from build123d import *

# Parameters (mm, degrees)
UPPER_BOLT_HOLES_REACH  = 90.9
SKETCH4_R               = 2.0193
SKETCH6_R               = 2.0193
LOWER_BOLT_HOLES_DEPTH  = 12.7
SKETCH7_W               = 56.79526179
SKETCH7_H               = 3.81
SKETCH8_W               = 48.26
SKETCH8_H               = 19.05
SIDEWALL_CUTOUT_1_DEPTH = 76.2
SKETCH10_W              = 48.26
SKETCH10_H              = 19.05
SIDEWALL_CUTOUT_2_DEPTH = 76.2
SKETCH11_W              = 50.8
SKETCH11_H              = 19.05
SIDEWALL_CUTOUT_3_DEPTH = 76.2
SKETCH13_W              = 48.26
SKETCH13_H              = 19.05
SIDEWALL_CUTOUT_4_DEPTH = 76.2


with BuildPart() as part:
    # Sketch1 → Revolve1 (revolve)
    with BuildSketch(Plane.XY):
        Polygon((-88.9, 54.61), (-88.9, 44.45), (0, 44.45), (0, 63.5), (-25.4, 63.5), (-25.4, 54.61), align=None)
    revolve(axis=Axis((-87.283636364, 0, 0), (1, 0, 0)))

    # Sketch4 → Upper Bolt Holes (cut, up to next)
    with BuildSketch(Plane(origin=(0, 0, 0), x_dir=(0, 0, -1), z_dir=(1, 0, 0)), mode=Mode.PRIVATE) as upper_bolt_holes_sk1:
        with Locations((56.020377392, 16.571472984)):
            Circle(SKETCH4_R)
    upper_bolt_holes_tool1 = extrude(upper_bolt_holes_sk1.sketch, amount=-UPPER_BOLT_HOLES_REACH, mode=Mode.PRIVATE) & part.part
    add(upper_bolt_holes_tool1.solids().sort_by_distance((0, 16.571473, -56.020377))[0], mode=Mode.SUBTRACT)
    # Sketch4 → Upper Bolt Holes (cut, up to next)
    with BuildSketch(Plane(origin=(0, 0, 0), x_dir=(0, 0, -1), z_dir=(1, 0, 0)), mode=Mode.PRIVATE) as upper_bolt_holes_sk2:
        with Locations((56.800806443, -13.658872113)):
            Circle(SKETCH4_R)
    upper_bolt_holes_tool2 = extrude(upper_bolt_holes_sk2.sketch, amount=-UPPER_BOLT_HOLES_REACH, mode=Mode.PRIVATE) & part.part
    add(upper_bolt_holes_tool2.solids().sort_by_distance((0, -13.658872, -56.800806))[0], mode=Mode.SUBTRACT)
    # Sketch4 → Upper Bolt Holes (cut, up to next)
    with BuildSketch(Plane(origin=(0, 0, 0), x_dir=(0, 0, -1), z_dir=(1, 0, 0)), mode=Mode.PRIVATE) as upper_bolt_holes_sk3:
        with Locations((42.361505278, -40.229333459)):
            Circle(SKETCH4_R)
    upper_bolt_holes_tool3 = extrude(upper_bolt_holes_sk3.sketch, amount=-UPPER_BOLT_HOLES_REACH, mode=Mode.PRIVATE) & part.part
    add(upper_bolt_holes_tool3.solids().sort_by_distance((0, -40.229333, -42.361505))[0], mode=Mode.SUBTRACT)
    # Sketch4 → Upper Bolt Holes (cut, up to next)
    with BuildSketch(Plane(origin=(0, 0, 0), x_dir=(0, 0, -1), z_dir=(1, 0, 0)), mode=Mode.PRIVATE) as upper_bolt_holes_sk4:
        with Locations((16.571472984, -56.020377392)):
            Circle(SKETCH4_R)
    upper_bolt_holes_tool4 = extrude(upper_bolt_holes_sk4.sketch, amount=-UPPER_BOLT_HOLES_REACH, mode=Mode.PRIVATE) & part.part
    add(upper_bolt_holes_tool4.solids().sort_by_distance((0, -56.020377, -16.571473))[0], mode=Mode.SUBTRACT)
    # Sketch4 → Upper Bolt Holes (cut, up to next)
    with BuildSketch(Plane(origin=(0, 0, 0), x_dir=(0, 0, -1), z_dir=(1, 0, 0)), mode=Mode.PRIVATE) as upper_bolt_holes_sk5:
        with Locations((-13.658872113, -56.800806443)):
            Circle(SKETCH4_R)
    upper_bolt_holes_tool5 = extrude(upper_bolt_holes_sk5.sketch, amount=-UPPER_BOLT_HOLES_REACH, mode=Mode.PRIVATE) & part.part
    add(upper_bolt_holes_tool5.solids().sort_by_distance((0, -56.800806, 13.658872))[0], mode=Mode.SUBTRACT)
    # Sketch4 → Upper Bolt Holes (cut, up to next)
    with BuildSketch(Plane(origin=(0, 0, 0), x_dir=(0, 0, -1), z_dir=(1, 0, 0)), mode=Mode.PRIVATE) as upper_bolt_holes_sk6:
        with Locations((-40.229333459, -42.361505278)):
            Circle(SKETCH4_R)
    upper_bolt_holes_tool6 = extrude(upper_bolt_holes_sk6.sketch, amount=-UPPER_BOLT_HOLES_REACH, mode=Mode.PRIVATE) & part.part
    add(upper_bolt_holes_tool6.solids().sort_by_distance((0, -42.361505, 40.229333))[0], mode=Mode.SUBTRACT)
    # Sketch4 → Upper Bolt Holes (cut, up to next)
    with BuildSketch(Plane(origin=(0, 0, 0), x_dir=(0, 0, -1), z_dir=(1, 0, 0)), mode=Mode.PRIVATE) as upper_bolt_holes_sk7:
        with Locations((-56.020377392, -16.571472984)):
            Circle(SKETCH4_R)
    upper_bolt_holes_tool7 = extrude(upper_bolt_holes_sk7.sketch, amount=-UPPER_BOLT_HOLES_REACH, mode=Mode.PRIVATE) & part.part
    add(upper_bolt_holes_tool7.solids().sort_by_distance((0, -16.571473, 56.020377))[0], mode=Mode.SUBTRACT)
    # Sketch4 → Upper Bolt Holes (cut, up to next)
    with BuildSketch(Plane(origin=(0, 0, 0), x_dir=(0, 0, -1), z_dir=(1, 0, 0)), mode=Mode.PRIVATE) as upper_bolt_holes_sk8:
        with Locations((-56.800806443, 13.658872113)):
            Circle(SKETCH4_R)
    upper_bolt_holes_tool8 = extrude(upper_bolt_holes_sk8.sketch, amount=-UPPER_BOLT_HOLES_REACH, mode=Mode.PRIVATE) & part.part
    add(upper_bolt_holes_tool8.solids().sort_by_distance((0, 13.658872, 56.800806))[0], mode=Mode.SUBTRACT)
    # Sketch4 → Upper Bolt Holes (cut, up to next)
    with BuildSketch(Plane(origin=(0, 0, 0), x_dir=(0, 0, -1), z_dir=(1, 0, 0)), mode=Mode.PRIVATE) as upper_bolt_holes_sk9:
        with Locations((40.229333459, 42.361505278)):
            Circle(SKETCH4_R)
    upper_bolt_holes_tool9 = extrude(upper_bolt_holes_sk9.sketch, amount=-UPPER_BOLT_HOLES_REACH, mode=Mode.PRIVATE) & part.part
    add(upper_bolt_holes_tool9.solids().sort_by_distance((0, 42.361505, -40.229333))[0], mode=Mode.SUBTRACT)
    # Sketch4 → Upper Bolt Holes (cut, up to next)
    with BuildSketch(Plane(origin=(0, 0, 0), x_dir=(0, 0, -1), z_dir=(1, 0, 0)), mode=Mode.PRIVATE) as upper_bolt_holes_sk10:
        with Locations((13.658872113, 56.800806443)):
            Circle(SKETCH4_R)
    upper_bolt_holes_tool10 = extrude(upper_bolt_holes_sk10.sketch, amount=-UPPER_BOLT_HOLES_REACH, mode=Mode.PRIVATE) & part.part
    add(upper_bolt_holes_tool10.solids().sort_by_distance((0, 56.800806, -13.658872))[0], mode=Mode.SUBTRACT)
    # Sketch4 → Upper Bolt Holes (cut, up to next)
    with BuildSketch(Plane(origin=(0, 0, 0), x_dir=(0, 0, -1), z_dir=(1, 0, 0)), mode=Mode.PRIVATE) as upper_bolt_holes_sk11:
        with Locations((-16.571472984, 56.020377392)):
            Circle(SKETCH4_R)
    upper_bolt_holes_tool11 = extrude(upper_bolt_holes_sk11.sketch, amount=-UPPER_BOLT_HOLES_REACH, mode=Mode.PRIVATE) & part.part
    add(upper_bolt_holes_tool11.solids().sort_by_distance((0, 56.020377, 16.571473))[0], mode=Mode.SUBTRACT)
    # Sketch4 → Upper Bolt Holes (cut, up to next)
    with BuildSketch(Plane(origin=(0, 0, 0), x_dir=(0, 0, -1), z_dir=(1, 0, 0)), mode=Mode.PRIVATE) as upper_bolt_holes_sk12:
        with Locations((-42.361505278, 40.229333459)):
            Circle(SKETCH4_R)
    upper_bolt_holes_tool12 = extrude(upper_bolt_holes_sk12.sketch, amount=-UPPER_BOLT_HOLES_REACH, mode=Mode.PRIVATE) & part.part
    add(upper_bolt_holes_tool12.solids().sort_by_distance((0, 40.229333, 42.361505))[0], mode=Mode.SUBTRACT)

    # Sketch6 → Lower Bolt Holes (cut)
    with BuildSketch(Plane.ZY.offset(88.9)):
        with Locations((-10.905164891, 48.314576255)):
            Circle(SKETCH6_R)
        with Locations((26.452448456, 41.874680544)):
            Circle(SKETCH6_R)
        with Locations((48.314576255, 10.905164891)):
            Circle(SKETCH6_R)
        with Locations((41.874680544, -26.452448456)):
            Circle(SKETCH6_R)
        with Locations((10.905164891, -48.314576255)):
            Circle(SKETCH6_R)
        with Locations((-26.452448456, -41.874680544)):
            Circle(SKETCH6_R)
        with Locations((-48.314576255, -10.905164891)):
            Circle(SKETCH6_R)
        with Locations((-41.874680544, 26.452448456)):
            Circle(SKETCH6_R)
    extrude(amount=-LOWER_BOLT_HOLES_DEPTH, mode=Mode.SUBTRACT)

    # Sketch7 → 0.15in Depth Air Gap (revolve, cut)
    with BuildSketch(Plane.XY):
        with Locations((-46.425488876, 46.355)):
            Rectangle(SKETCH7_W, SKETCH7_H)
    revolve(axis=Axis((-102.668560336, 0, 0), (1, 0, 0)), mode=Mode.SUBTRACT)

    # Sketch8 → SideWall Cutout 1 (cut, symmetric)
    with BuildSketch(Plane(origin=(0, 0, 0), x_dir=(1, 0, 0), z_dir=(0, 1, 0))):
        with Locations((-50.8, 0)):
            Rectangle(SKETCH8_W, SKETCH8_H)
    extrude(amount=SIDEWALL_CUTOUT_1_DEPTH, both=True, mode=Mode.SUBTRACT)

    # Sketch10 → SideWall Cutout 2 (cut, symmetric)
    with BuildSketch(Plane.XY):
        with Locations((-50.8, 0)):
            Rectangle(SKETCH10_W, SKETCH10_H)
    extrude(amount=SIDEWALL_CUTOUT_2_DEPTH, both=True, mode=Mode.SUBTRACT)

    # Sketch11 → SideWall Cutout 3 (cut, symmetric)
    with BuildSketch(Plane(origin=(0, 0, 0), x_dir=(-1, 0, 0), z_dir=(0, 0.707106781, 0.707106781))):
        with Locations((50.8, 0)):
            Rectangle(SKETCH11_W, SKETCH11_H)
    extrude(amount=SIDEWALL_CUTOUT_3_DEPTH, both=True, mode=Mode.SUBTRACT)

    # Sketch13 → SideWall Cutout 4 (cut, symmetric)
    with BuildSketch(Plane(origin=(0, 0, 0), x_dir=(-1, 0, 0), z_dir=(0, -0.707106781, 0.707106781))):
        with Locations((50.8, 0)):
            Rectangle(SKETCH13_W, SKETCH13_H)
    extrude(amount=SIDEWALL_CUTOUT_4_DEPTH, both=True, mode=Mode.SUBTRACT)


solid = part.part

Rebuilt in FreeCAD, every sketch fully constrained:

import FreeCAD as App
import Part
import Sketcher
Q = App.Units.Quantity

doc = App.newDocument("Part")
body = doc.addObject("PartDesign::Body", "Body")

# Sketch on XY plane
sketch1 = body.newObject("Sketcher::SketchObject", "Sketch")
sketch1.AttachmentSupport = (doc.getObject("XY_Plane"), [""])
sketch1.MapMode = "FlatFace"
sketch1.addGeometry([
    Part.LineSegment(App.Vector(-89, 55, 0), App.Vector(-89, 44, 0)),  # 0
    Part.LineSegment(App.Vector(-89, 44, 0), App.Vector(0, 44, 0)),  # 1
    Part.LineSegment(App.Vector(0, 44, 0), App.Vector(0, 64, 0)),  # 2
    Part.LineSegment(App.Vector(0, 64, 0), App.Vector(-25, 64, 0)),  # 3
    Part.LineSegment(App.Vector(-25, 64, 0), App.Vector(-25, 55, 0)),  # 4
    Part.LineSegment(App.Vector(-25, 55, 0), App.Vector(-89, 55, 0)),  # 5
], False)
sketch1.addConstraint([
    Sketcher.Constraint("Coincident", 0, 2, 1, 1),
    Sketcher.Constraint("Coincident", 1, 2, 2, 1),
    Sketcher.Constraint("Coincident", 2, 2, 3, 1),
    Sketcher.Constraint("Coincident", 3, 2, 4, 1),
    Sketcher.Constraint("Coincident", 4, 2, 5, 1),
    Sketcher.Constraint("Coincident", 5, 2, 0, 1),
    Sketcher.Constraint("Vertical", 0),
    Sketcher.Constraint("Horizontal", 1),
    Sketcher.Constraint("Vertical", 2),
    Sketcher.Constraint("Horizontal", 3),
    Sketcher.Constraint("Vertical", 4),
    Sketcher.Constraint("Horizontal", 5),
    Sketcher.Constraint("PointOnObject", 1, 2, -2),
    Sketcher.Constraint("DistanceX", 3, 2, 3, 1, Q("1 in")),
    Sketcher.Constraint("DistanceX", 1, 1, 1, 2, Q("3.5 in")),
    Sketcher.Constraint("DistanceY", 0, 2, 0, 1, Q("0.4 in")),
    Sketcher.Constraint("DistanceY", 2, 1, 2, 2, Q("0.75 in")),
    Sketcher.Constraint("DistanceY", -1, 1, 2, 2, Q("2.5 in")),
])
revolution = body.newObject("PartDesign::Revolution", "Revolution")
revolution.Profile = sketch1
revolution.ReferenceAxis = (sketch1, ["H_Axis"])
revolution.Angle = 360

# Sketch on YZ plane
sketch2 = body.newObject("Sketcher::SketchObject", "Sketch001")
sketch2.AttachmentSupport = (doc.getObject("YZ_Plane"), [""])
sketch2.MapMode = "FlatFace"
sketch2.addGeometry(Part.Circle(App.Vector(16.6, -56, 0), App.Vector(0, 0, 1), 2), False)
sketch2.addConstraint([
    Sketcher.Constraint("Diameter", 0, Q("0.159 in")),
    Sketcher.Constraint("DistanceX", -1, 1, 0, 3, 16.571473),
    Sketcher.Constraint("DistanceY", 0, 3, -1, 1, 56.020377),
])
pocket1 = body.newObject("PartDesign::Pocket", "Pocket")
pocket1.Profile = sketch2
pocket1.Type = "UpToFirst"

# Sketch on YZ plane
sketch3 = body.newObject("Sketcher::SketchObject", "Sketch002")
sketch3.AttachmentSupport = (doc.getObject("YZ_Plane"), [""])
sketch3.MapMode = "FlatFace"
sketch3.addGeometry(Part.Circle(App.Vector(-13.7, -56.8, 0), App.Vector(0, 0, 1), 2), False)
sketch3.addConstraint([
    Sketcher.Constraint("Diameter", 0, Q("0.159 in")),
    Sketcher.Constraint("DistanceX", 0, 3, -1, 1, 13.658872),
    Sketcher.Constraint("DistanceY", 0, 3, -1, 1, 56.800806),
])
pocket2 = body.newObject("PartDesign::Pocket", "Pocket001")
pocket2.Profile = sketch3
pocket2.Type = "UpToFirst"

# Sketch on YZ plane
sketch4 = body.newObject("Sketcher::SketchObject", "Sketch003")
sketch4.AttachmentSupport = (doc.getObject("YZ_Plane"), [""])
sketch4.MapMode = "FlatFace"
sketch4.addGeometry(Part.Circle(App.Vector(-40.2, -42.4, 0), App.Vector(0, 0, 1), 2), False)
sketch4.addConstraint([
    Sketcher.Constraint("Diameter", 0, Q("0.159 in")),
    Sketcher.Constraint("DistanceX", 0, 3, -1, 1, 40.229333),
    Sketcher.Constraint("DistanceY", 0, 3, -1, 1, 42.361505),
])
pocket3 = body.newObject("PartDesign::Pocket", "Pocket002")
pocket3.Profile = sketch4
pocket3.Type = "UpToFirst"

# Sketch on YZ plane
sketch5 = body.newObject("Sketcher::SketchObject", "Sketch004")
sketch5.AttachmentSupport = (doc.getObject("YZ_Plane"), [""])
sketch5.MapMode = "FlatFace"
sketch5.addGeometry(Part.Circle(App.Vector(-56, -16.6, 0), App.Vector(0, 0, 1), 2), False)
sketch5.addConstraint([
    Sketcher.Constraint("Diameter", 0, Q("0.159 in")),
    Sketcher.Constraint("DistanceX", 0, 3, -1, 1, 56.020377),
    Sketcher.Constraint("DistanceY", 0, 3, -1, 1, 16.571473),
])
pocket4 = body.newObject("PartDesign::Pocket", "Pocket003")
pocket4.Profile = sketch5
pocket4.Type = "UpToFirst"

# Sketch on YZ plane
sketch6 = body.newObject("Sketcher::SketchObject", "Sketch005")
sketch6.AttachmentSupport = (doc.getObject("YZ_Plane"), [""])
sketch6.MapMode = "FlatFace"
sketch6.addGeometry(Part.Circle(App.Vector(-56.8, 13.7, 0), App.Vector(0, 0, 1), 2), False)
sketch6.addConstraint([
    Sketcher.Constraint("Diameter", 0, Q("0.159 in")),
    Sketcher.Constraint("DistanceX", 0, 3, -1, 1, 56.800806),
    Sketcher.Constraint("DistanceY", -1, 1, 0, 3, 13.658872),
])
pocket5 = body.newObject("PartDesign::Pocket", "Pocket004")
pocket5.Profile = sketch6
pocket5.Type = "UpToFirst"

# Sketch on YZ plane
sketch7 = body.newObject("Sketcher::SketchObject", "Sketch006")
sketch7.AttachmentSupport = (doc.getObject("YZ_Plane"), [""])
sketch7.MapMode = "FlatFace"
sketch7.addGeometry(Part.Circle(App.Vector(-42.4, 40.2, 0), App.Vector(0, 0, 1), 2), False)
sketch7.addConstraint([
    Sketcher.Constraint("Diameter", 0, Q("0.159 in")),
    Sketcher.Constraint("DistanceX", 0, 3, -1, 1, 42.361505),
    Sketcher.Constraint("DistanceY", -1, 1, 0, 3, 40.229333),
])
pocket6 = body.newObject("PartDesign::Pocket", "Pocket005")
pocket6.Profile = sketch7
pocket6.Type = "UpToFirst"

# Sketch on YZ plane
sketch8 = body.newObject("Sketcher::SketchObject", "Sketch007")
sketch8.AttachmentSupport = (doc.getObject("YZ_Plane"), [""])
sketch8.MapMode = "FlatFace"
sketch8.addGeometry(Part.Circle(App.Vector(-16.6, 56, 0), App.Vector(0, 0, 1), 2), False)
sketch8.addConstraint([
    Sketcher.Constraint("Diameter", 0, Q("0.159 in")),
    Sketcher.Constraint("DistanceX", 0, 3, -1, 1, 16.571473),
    Sketcher.Constraint("DistanceY", -1, 1, 0, 3, 56.020377),
])
pocket7 = body.newObject("PartDesign::Pocket", "Pocket006")
pocket7.Profile = sketch8
pocket7.Type = "UpToFirst"

# Sketch on YZ plane
sketch9 = body.newObject("Sketcher::SketchObject", "Sketch008")
sketch9.AttachmentSupport = (doc.getObject("YZ_Plane"), [""])
sketch9.MapMode = "FlatFace"
sketch9.addGeometry(Part.Circle(App.Vector(13.7, 56.8, 0), App.Vector(0, 0, 1), 2), False)
sketch9.addConstraint([
    Sketcher.Constraint("Diameter", 0, Q("0.159 in")),
    Sketcher.Constraint("DistanceX", -1, 1, 0, 3, 13.658872),
    Sketcher.Constraint("DistanceY", -1, 1, 0, 3, 56.800806),
])
pocket8 = body.newObject("PartDesign::Pocket", "Pocket007")
pocket8.Profile = sketch9
pocket8.Type = "UpToFirst"

# Sketch on YZ plane
sketch10 = body.newObject("Sketcher::SketchObject", "Sketch009")
sketch10.AttachmentSupport = (doc.getObject("YZ_Plane"), [""])
sketch10.MapMode = "FlatFace"
sketch10.addGeometry(Part.Circle(App.Vector(42.4, -40.2, 0), App.Vector(0, 0, 1), 2), False)
sketch10.addConstraint([
    Sketcher.Constraint("Diameter", 0, Q("0.159 in")),
    Sketcher.Constraint("DistanceX", -1, 1, 0, 3, 42.361505),
    Sketcher.Constraint("DistanceY", 0, 3, -1, 1, 40.229333),
])
pocket9 = body.newObject("PartDesign::Pocket", "Pocket008")
pocket9.Profile = sketch10
pocket9.Type = "UpToFirst"

# Sketch on YZ plane
sketch11 = body.newObject("Sketcher::SketchObject", "Sketch010")
sketch11.AttachmentSupport = (doc.getObject("YZ_Plane"), [""])
sketch11.MapMode = "FlatFace"
sketch11.addGeometry(Part.Circle(App.Vector(56.8, -13.7, 0), App.Vector(0, 0, 1), 2), False)
sketch11.addConstraint([
    Sketcher.Constraint("Diameter", 0, Q("0.159 in")),
    Sketcher.Constraint("DistanceX", -1, 1, 0, 3, 56.800806),
    Sketcher.Constraint("DistanceY", 0, 3, -1, 1, 13.658872),
])
pocket10 = body.newObject("PartDesign::Pocket", "Pocket009")
pocket10.Profile = sketch11
pocket10.Type = "UpToFirst"

# Sketch on YZ plane
sketch12 = body.newObject("Sketcher::SketchObject", "Sketch011")
sketch12.AttachmentSupport = (doc.getObject("YZ_Plane"), [""])
sketch12.MapMode = "FlatFace"
sketch12.addGeometry(Part.Circle(App.Vector(56, 16.6, 0), App.Vector(0, 0, 1), 2), False)
sketch12.addConstraint([
    Sketcher.Constraint("Diameter", 0, Q("0.159 in")),
    Sketcher.Constraint("DistanceX", -1, 1, 0, 3, 56.020377),
    Sketcher.Constraint("DistanceY", -1, 1, 0, 3, 16.571473),
])
pocket11 = body.newObject("PartDesign::Pocket", "Pocket010")
pocket11.Profile = sketch12
pocket11.Type = "UpToFirst"

# Sketch on YZ plane
sketch13 = body.newObject("Sketcher::SketchObject", "Sketch012")
sketch13.AttachmentSupport = (doc.getObject("YZ_Plane"), [""])
sketch13.MapMode = "FlatFace"
sketch13.addGeometry(Part.Circle(App.Vector(40.2, 42.4, 0), App.Vector(0, 0, 1), 2), False)
sketch13.addConstraint([
    Sketcher.Constraint("Diameter", 0, Q("0.159 in")),
    Sketcher.Constraint("DistanceX", -1, 1, 0, 3, 40.229333),
    Sketcher.Constraint("DistanceY", -1, 1, 0, 3, 42.361505),
])
pocket12 = body.newObject("PartDesign::Pocket", "Pocket011")
pocket12.Profile = sketch13
pocket12.Type = "UpToFirst"

# Sketch on YZ plane
sketch14 = body.newObject("Sketcher::SketchObject", "Sketch013")
sketch14.AttachmentSupport = (doc.getObject("YZ_Plane"), [""])
sketch14.MapMode = "FlatFace"
sketch14.AttachmentOffset = App.Placement(App.Vector(0, 0, -3.5 * 25.4), App.Rotation())
sketch14.addGeometry([
    Part.Circle(App.Vector(48.3, -10.9, 0), App.Vector(0, 0, 1), 2),  # 0
    Part.Circle(App.Vector(41.9, 26.5, 0), App.Vector(0, 0, 1), 2),  # 1
    Part.Circle(App.Vector(10.9, 48.3, 0), App.Vector(0, 0, 1), 2),  # 2
    Part.Circle(App.Vector(-26.5, 41.9, 0), App.Vector(0, 0, 1), 2),  # 3
    Part.Circle(App.Vector(-48.3, 10.9, 0), App.Vector(0, 0, 1), 2),  # 4
    Part.Circle(App.Vector(-41.9, -26.5, 0), App.Vector(0, 0, 1), 2),  # 5
    Part.Circle(App.Vector(-10.9, -48.3, 0), App.Vector(0, 0, 1), 2),  # 6
    Part.Circle(App.Vector(26.5, -41.9, 0), App.Vector(0, 0, 1), 2),  # 7
], False)
sketch14.addConstraint([
    Sketcher.Constraint("Equal", 0, 1),
    Sketcher.Constraint("Equal", 1, 2),
    Sketcher.Constraint("Equal", 2, 3),
    Sketcher.Constraint("Equal", 3, 4),
    Sketcher.Constraint("Equal", 4, 5),
    Sketcher.Constraint("Equal", 5, 6),
    Sketcher.Constraint("Equal", 6, 7),
    Sketcher.Constraint("Symmetric", 0, 3, 4, 3, -1, 1),
    Sketcher.Constraint("Symmetric", 1, 3, 5, 3, -1, 1),
    Sketcher.Constraint("Symmetric", 2, 3, 6, 3, -1, 1),
    Sketcher.Constraint("Symmetric", 3, 3, 7, 3, -1, 1),
    Sketcher.Constraint("Diameter", 0, Q("0.159 in")),
    Sketcher.Constraint("DistanceX", -1, 1, 1, 3, 41.874681),
    Sketcher.Constraint("DistanceY", -1, 1, 1, 3, 26.452448),
    Sketcher.Constraint("DistanceX", 3, 3, -1, 1, 26.452448),
    Sketcher.Constraint("DistanceY", -1, 1, 3, 3, 41.874681),
    Sketcher.Constraint("DistanceX", 2, 3, 0, 3, 37.409411),
    Sketcher.Constraint("DistanceY", 0, 3, 2, 3, 59.219741),
    Sketcher.Constraint("DistanceX", 4, 3, 2, 3, 59.219741),
    Sketcher.Constraint("DistanceY", 4, 3, 2, 3, 37.409411),
])
pocket13 = body.newObject("PartDesign::Pocket", "Pocket012")
pocket13.Profile = sketch14
pocket13.Length = Q("0.5 in")
pocket13.Reversed = True

# Sketch on XY plane
sketch15 = body.newObject("Sketcher::SketchObject", "Sketch014")
sketch15.AttachmentSupport = (doc.getObject("XY_Plane"), [""])
sketch15.MapMode = "FlatFace"
sketch15.addGeometry([
    Part.LineSegment(App.Vector(-74.8, 48.3, 0), App.Vector(-74.8, 44.5, 0)),
    Part.LineSegment(App.Vector(-74.8, 44.5, 0), App.Vector(-18, 44.5, 0)),
    Part.LineSegment(App.Vector(-18, 44.5, 0), App.Vector(-18, 48.3, 0)),
    Part.LineSegment(App.Vector(-18, 48.3, 0), App.Vector(-74.8, 48.3, 0)),
], False)
sketch15.addConstraint([
    Sketcher.Constraint("Coincident", 0, 2, 1, 1),
    Sketcher.Constraint("Coincident", 1, 2, 2, 1),
    Sketcher.Constraint("Coincident", 2, 2, 3, 1),
    Sketcher.Constraint("Coincident", 3, 2, 0, 1),
    Sketcher.Constraint("Vertical", 0),
    Sketcher.Constraint("Horizontal", 1),
    Sketcher.Constraint("Vertical", 2),
    Sketcher.Constraint("Horizontal", 3),
    Sketcher.Constraint("DistanceY", 0, 2, 0, 1, Q("0.15 in")),
    Sketcher.Constraint("DistanceY", -1, 1, 2, 2, Q("1.9 in")),
    Sketcher.Constraint("DistanceX", 1, 1, 1, 2, 56.795262),
    Sketcher.Constraint("DistanceX", 0, 2, -1, 1, 74.82312),
])
groove = body.newObject("PartDesign::Groove", "Groove")
groove.Profile = sketch15
groove.ReferenceAxis = (sketch15, ["H_Axis"])
groove.Angle = 360

# Sketch on XZ plane
sketch16 = body.newObject("Sketcher::SketchObject", "Sketch015")
sketch16.AttachmentSupport = (doc.getObject("XZ_Plane"), [""])
sketch16.MapMode = "FlatFace"
sketch16.addGeometry([
    Part.LineSegment(App.Vector(-75, -10, 0), App.Vector(-75, 10, 0)),
    Part.LineSegment(App.Vector(-75, 10, 0), App.Vector(-27, 10, 0)),
    Part.LineSegment(App.Vector(-27, 10, 0), App.Vector(-27, -10, 0)),
    Part.LineSegment(App.Vector(-27, -10, 0), App.Vector(-75, -10, 0)),
], False)
sketch16.addConstraint([
    Sketcher.Constraint("Coincident", 0, 2, 1, 1),
    Sketcher.Constraint("Coincident", 1, 2, 2, 1),
    Sketcher.Constraint("Coincident", 2, 2, 3, 1),
    Sketcher.Constraint("Coincident", 3, 2, 0, 1),
    Sketcher.Constraint("Vertical", 0),
    Sketcher.Constraint("Horizontal", 1),
    Sketcher.Constraint("Vertical", 2),
    Sketcher.Constraint("Horizontal", 3),
    Sketcher.Constraint("DistanceX", 1, 1, 1, 2, Q("1.9 in")),
    Sketcher.Constraint("DistanceY", 0, 1, 0, 2, Q("0.75 in")),
    Sketcher.Constraint("DistanceX", 0, 2, -1, 1, Q("2.95 in")),
    Sketcher.Constraint("DistanceY", -1, 1, 0, 2, Q("0.375 in")),
])
pocket14 = body.newObject("PartDesign::Pocket", "Pocket013")
pocket14.Profile = sketch16
pocket14.Length = Q("6 in")
pocket14.Midplane = True

# Sketch on XY plane
sketch17 = body.newObject("Sketcher::SketchObject", "Sketch016")
sketch17.AttachmentSupport = (doc.getObject("XY_Plane"), [""])
sketch17.MapMode = "FlatFace"
sketch17.addGeometry([
    Part.LineSegment(App.Vector(-75, 10, 0), App.Vector(-75, -10, 0)),
    Part.LineSegment(App.Vector(-75, -10, 0), App.Vector(-27, -10, 0)),
    Part.LineSegment(App.Vector(-27, -10, 0), App.Vector(-27, 10, 0)),
    Part.LineSegment(App.Vector(-27, 10, 0), App.Vector(-75, 10, 0)),
], False)
sketch17.addConstraint([
    Sketcher.Constraint("Coincident", 0, 2, 1, 1),
    Sketcher.Constraint("Coincident", 1, 2, 2, 1),
    Sketcher.Constraint("Coincident", 2, 2, 3, 1),
    Sketcher.Constraint("Coincident", 3, 2, 0, 1),
    Sketcher.Constraint("Vertical", 0),
    Sketcher.Constraint("Horizontal", 1),
    Sketcher.Constraint("Vertical", 2),
    Sketcher.Constraint("Horizontal", 3),
    Sketcher.Constraint("DistanceX", 1, 1, 1, 2, Q("1.9 in")),
    Sketcher.Constraint("DistanceY", 0, 2, 0, 1, Q("0.75 in")),
    Sketcher.Constraint("DistanceX", 0, 2, -1, 1, Q("2.95 in")),
    Sketcher.Constraint("DistanceY", 0, 2, -1, 1, Q("0.375 in")),
])
pocket15 = body.newObject("PartDesign::Pocket", "Pocket014")
pocket15.Profile = sketch17
pocket15.Length = Q("6 in")
pocket15.Midplane = True

# Sketch on an angled plane
sketch18 = body.newObject("Sketcher::SketchObject", "Sketch017")
sketch18.Placement = App.Placement(App.Vector(0, 0, 0), App.Rotation(App.Vector(-1, 0, 0), App.Vector(0, -0.707106781, 0.707106781), App.Vector(0, 0.707106781, 0.707106781), "ZXY"))
sketch18.addGeometry([
    Part.LineSegment(App.Vector(25, 10, 0), App.Vector(25, -10, 0)),
    Part.LineSegment(App.Vector(25, -10, 0), App.Vector(76, -10, 0)),
    Part.LineSegment(App.Vector(76, -10, 0), App.Vector(76, 10, 0)),
    Part.LineSegment(App.Vector(76, 10, 0), App.Vector(25, 10, 0)),
], False)
sketch18.addConstraint([
    Sketcher.Constraint("Coincident", 0, 2, 1, 1),
    Sketcher.Constraint("Coincident", 1, 2, 2, 1),
    Sketcher.Constraint("Coincident", 2, 2, 3, 1),
    Sketcher.Constraint("Coincident", 3, 2, 0, 1),
    Sketcher.Constraint("Vertical", 0),
    Sketcher.Constraint("Horizontal", 1),
    Sketcher.Constraint("Vertical", 2),
    Sketcher.Constraint("Horizontal", 3),
    Sketcher.Constraint("DistanceX", 1, 1, 1, 2, Q("2 in")),
    Sketcher.Constraint("DistanceX", -1, 1, 0, 2, Q("1 in")),
    Sketcher.Constraint("DistanceY", 0, 2, 0, 1, Q("0.75 in")),
    Sketcher.Constraint("DistanceY", 0, 2, -1, 1, Q("0.375 in")),
])
pocket16 = body.newObject("PartDesign::Pocket", "Pocket015")
pocket16.Profile = sketch18
pocket16.Length = Q("6 in")
pocket16.Midplane = True

# Sketch on an angled plane
sketch19 = body.newObject("Sketcher::SketchObject", "Sketch018")
sketch19.Placement = App.Placement(App.Vector(0, 0, 0), App.Rotation(App.Vector(-1, 0, 0), App.Vector(0, -0.707106781, -0.707106781), App.Vector(0, -0.707106781, 0.707106781), "ZXY"))
sketch19.addGeometry([
    Part.LineSegment(App.Vector(27, 10, 0), App.Vector(27, -10, 0)),
    Part.LineSegment(App.Vector(27, -10, 0), App.Vector(75, -10, 0)),
    Part.LineSegment(App.Vector(75, -10, 0), App.Vector(75, 10, 0)),
    Part.LineSegment(App.Vector(75, 10, 0), App.Vector(27, 10, 0)),
], False)
sketch19.addConstraint([
    Sketcher.Constraint("Coincident", 0, 2, 1, 1),
    Sketcher.Constraint("Coincident", 1, 2, 2, 1),
    Sketcher.Constraint("Coincident", 2, 2, 3, 1),
    Sketcher.Constraint("Coincident", 3, 2, 0, 1),
    Sketcher.Constraint("Vertical", 0),
    Sketcher.Constraint("Horizontal", 1),
    Sketcher.Constraint("Vertical", 2),
    Sketcher.Constraint("Horizontal", 3),
    Sketcher.Constraint("DistanceX", 1, 1, 1, 2, Q("1.9 in")),
    Sketcher.Constraint("DistanceY", 0, 2, 0, 1, Q("0.75 in")),
    Sketcher.Constraint("DistanceX", -1, 1, 0, 2, Q("1.05 in")),
    Sketcher.Constraint("DistanceY", 0, 2, -1, 1, Q("0.375 in")),
])
pocket17 = body.newObject("PartDesign::Pocket", "Pocket016")
pocket17.Profile = sketch19
pocket17.Length = Q("6 in")
pocket17.Midplane = True

doc.recompute()
